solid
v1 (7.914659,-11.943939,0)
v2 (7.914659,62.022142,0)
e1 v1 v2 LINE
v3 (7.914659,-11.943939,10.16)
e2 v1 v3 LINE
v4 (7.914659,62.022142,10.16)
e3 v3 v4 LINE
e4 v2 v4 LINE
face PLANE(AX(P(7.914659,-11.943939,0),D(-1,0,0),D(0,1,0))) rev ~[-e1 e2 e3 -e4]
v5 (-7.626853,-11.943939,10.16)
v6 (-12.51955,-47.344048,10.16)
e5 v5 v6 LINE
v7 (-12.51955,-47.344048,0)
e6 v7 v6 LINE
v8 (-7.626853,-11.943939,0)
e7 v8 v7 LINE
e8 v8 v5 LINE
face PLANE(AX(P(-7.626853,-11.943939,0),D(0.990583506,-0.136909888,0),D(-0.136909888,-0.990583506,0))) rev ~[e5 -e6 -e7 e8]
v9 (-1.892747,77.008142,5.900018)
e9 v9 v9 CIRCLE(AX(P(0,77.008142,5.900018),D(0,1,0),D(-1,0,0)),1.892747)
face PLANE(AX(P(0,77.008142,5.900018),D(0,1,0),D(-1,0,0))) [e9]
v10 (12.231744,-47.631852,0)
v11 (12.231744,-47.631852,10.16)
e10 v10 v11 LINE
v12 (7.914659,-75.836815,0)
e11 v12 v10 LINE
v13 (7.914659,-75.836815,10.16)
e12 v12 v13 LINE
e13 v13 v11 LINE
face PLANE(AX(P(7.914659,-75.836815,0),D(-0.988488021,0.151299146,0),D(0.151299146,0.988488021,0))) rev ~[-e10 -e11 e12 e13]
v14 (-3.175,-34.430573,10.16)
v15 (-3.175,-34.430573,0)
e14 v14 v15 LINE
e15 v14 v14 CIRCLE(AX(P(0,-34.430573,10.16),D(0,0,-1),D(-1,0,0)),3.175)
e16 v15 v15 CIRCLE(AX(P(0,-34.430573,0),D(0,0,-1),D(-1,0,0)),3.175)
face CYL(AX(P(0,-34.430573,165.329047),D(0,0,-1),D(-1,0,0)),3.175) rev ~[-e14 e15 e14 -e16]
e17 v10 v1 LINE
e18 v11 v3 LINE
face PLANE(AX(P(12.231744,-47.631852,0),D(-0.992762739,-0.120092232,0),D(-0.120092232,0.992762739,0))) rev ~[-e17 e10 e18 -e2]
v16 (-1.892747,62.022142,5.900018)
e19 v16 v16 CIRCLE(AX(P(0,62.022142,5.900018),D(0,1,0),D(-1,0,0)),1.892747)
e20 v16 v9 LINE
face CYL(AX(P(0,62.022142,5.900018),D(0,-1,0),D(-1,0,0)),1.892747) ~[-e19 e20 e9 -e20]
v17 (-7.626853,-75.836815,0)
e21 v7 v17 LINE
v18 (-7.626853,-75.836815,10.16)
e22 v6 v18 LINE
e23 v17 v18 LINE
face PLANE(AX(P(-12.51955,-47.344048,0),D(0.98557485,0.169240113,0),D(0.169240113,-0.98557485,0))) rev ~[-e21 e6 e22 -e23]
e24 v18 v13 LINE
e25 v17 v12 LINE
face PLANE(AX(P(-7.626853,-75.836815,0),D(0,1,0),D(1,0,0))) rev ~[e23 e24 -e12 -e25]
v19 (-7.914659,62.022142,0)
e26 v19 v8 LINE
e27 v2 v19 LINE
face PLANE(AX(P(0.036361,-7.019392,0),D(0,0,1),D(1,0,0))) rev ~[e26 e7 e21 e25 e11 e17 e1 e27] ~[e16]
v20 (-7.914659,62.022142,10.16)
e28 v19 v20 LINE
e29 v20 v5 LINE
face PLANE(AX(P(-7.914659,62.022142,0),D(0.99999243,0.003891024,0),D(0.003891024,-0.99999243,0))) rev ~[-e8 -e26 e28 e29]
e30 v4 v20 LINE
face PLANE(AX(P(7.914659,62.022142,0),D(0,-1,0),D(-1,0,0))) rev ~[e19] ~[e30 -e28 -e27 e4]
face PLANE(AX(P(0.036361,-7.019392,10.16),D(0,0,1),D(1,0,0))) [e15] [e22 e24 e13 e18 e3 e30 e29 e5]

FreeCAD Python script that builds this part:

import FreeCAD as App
import Part
import Sketcher
Q = App.Units.Quantity

doc = App.newDocument("Part")
body = doc.addObject("PartDesign::Body", "Body")

sketch1 = body.newObject("Sketcher::SketchObject", "Sketch")
sketch1.AttachmentSupport = (doc.getObject("XY_Plane"), [""])
sketch1.MapMode = "FlatFace"
sketch1.addGeometry(Part.LineSegment(App.Vector(8, 62, 0), App.Vector(-8, 62, 0)), False)
sketch1.addGeometry(Part.LineSegment(App.Vector(-8, 62, 0), App.Vector(-8, -12, 0)), False)
sketch1.addGeometry(Part.LineSegment(App.Vector(-8, -12, 0), App.Vector(-13, -47, 0)), False)
sketch1.addGeometry(Part.LineSegment(App.Vector(-13, -47, 0), App.Vector(-8, -76, 0)), False)
sketch1.addGeometry(Part.LineSegment(App.Vector(-8, -76, 0), App.Vector(8, -76, 0)), False)
sketch1.addGeometry(Part.LineSegment(App.Vector(8, -76, 0), App.Vector(12, -48, 0)), False)
sketch1.addGeometry(Part.LineSegment(App.Vector(12, -48, 0), App.Vector(8, -12, 0)), False)
sketch1.addGeometry(Part.LineSegment(App.Vector(8, -12, 0), App.Vector(8, 62, 0)), False)
sketch1.addConstraint(Sketcher.Constraint("Coincident", 0, 2, 1, 1))
sketch1.addConstraint(Sketcher.Constraint("Coincident", 1, 2, 2, 1))
sketch1.addConstraint(Sketcher.Constraint("Coincident", 2, 2, 3, 1))
sketch1.addConstraint(Sketcher.Constraint("Coincident", 3, 2, 4, 1))
sketch1.addConstraint(Sketcher.Constraint("Coincident", 4, 2, 5, 1))
sketch1.addConstraint(Sketcher.Constraint("Coincident", 5, 2, 6, 1))
sketch1.addConstraint(Sketcher.Constraint("Coincident", 6, 2, 7, 1))
sketch1.addConstraint(Sketcher.Constraint("Coincident", 7, 2, 0, 1))
sketch1.addConstraint(Sketcher.Constraint("Horizontal", 0))
sketch1.addConstraint(Sketcher.Constraint("Horizontal", 4))
sketch1.addConstraint(Sketcher.Constraint("Vertical", 7))
sketch1.addConstraint(Sketcher.Constraint("Horizontal", 1, 2, 6, 2))
sketch1.addConstraint(Sketcher.Constraint("Vertical", 1, 2, 3, 2))
sketch1.addConstraint(Sketcher.Constraint("Vertical", 4, 2, 6, 2))
sketch1.addConstraint(Sketcher.Constraint("DistanceX", 0, 2, 0, 1, 15.829318))
sketch1.addConstraint(Sketcher.Constraint("DistanceY", 7, 1, 7, 2, 73.966081))
sketch1.addConstraint(Sketcher.Constraint("Distance", 5, 28.533439))
sketch1.addConstraint(Sketcher.Constraint("Distance", 6, 35.948079))
sketch1.addConstraint(Sketcher.Constraint("DistanceX", 4, 1, 4, 2, 15.541512))
sketch1.addConstraint(Sketcher.Constraint("DistanceX", 0, 2, -1, 1, 7.914659))
sketch1.addConstraint(Sketcher.Constraint("DistanceY", 1, 2, -1, 1, 11.943939))
sketch1.addConstraint(Sketcher.Constraint("DistanceX", 2, 2, -1, 1, 12.51955))
sketch1.addConstraint(Sketcher.Constraint("DistanceY", 2, 2, 1, 2, 35.400109))
sketch1.addConstraint(Sketcher.Constraint("Distance", 3, 28.909795))
pad1 = body.newObject("PartDesign::Pad", "Pad")
pad1.Profile = sketch1
pad1.Length = Q("0.4 in")

sketch2 = body.newObject("Sketcher::SketchObject", "Sketch001")
sketch2.AttachmentSupport = (doc.getObject("XZ_Plane"), [""])
sketch2.MapMode = "FlatFace"
sketch2.AttachmentOffset = App.Placement(App.Vector(0, 0, -62.022142), App.Rotation())
sketch2.addGeometry(Part.Circle(App.Vector(0, 5.9, 0), App.Vector(0, 0, 1), 1.9), False)
sketch2.addConstraint(Sketcher.Constraint("PointOnObject", 0, 3, -2))
sketch2.addConstraint(Sketcher.Constraint("Diameter", 0, 3.785494))
sketch2.addConstraint(Sketcher.Constraint("DistanceY", -1, 1, 0, 3, 5.900018))
pad2 = body.newObject("PartDesign::Pad", "Pad001")
pad2.Profile = sketch2
pad2.Length = Q("0.59 in")
pad2.Reversed = True

sketch3 = body.newObject("Sketcher::SketchObject", "Sketch002")
sketch3.AttachmentSupport = (doc.getObject("XY_Plane"), [""])
sketch3.MapMode = "FlatFace"
sketch3.AttachmentOffset = App.Placement(App.Vector(0, 0, 0.4 * 25.4), App.Rotation())
sketch3.addGeometry(Part.Circle(App.Vector(0, -34.4, 0), App.Vector(0, 0, 1), 3.2), False)
sketch3.addConstraint(Sketcher.Constraint("PointOnObject", 0, 3, -2))
sketch3.addConstraint(Sketcher.Constraint("Diameter", 0, Q("0.25 in")))
sketch3.addConstraint(Sketcher.Constraint("DistanceY", 0, 3, -1, 1, 34.430573))
doc.recompute()
hole = body.newObject("PartDesign::Hole", "Hole")
hole.Profile = sketch3
hole.ThreadType = "None"
hole.Diameter = Q("0.25 in")
hole.DepthType = "ThroughAll"

doc.recompute()
